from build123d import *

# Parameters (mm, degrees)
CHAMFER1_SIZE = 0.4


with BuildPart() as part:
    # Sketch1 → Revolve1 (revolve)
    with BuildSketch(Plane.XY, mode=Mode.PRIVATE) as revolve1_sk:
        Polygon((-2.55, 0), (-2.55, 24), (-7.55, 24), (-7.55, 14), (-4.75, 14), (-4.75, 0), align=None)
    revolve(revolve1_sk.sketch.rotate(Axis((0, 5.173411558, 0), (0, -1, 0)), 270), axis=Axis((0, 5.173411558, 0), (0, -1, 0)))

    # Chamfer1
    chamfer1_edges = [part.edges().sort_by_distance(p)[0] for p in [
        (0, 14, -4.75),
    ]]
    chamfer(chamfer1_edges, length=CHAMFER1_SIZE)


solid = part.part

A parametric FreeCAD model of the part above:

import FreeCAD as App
import Part
import Sketcher
from FreeCAD import Vector


def edges_at(feature, points):
    """Names of the edges that pass closest to the given points."""
    edges = feature.Shape.Edges
    near = lambda p: min(range(len(edges)), key=lambda i: edges[i].distToShape(Part.Vertex(*p))[0])
    return sorted({f"Edge{near(p) + 1}" for p in points})

doc = App.newDocument("Part")
body = doc.addObject("PartDesign::Body", "Body")

sketch1 = doc.addObject("Sketcher::SketchObject", "Sketch")
body.addObject(sketch1)
sketch1.AttachmentSupport = (doc.XY_Plane, [""])
sketch1.MapMode = "FlatFace"
sketch1.addGeometry(Part.LineSegment(Vector(-2.5, 0, 0), Vector(-2.5, 24, 0)), False)
sketch1.addGeometry(Part.LineSegment(Vector(-2.5, 24, 0), Vector(-7.5, 24, 0)), False)
sketch1.addGeometry(Part.LineSegment(Vector(-7.5, 24, 0), Vector(-7.5, 14, 0)), False)
sketch1.addGeometry(Part.LineSegment(Vector(-7.5, 14, 0), Vector(-4.8, 14, 0)), False)
sketch1.addGeometry(Part.LineSegment(Vector(-4.8, 14, 0), Vector(-4.8, 0, 0)), False)
sketch1.addGeometry(Part.LineSegment(Vector(-4.8, 0, 0), Vector(-2.5, 0, 0)), False)
sketch1.addConstraint(Sketcher.Constraint("Coincident", 0, 2, 1, 1))
sketch1.addConstraint(Sketcher.Constraint("Coincident", 1, 2, 2, 1))
sketch1.addConstraint(Sketcher.Constraint("Coincident", 2, 2, 3, 1))
sketch1.addConstraint(Sketcher.Constraint("Coincident", 3, 2, 4, 1))
sketch1.addConstraint(Sketcher.Constraint("Coincident", 4, 2, 5, 1))
sketch1.addConstraint(Sketcher.Constraint("Coincident", 5, 2, 0, 1))
sketch1.addConstraint(Sketcher.Constraint("Vertical", 0))
sketch1.addConstraint(Sketcher.Constraint("Horizontal", 1))
sketch1.addConstraint(Sketcher.Constraint("Vertical", 2))
sketch1.addConstraint(Sketcher.Constraint("Horizontal", 3))
sketch1.addConstraint(Sketcher.Constraint("Vertical", 4))
sketch1.addConstraint(Sketcher.Constraint("Horizontal", 5))
sketch1.addConstraint(Sketcher.Constraint("PointOnObject", 4, 2, -1))
sketch1.addConstraint(Sketcher.Constraint("DistanceX", 1, 2, 1, 1, 5.0))
sketch1.addConstraint(Sketcher.Constraint("DistanceY", 0, 1, 0, 2, 24.0))
sketch1.addConstraint(Sketcher.Constraint("DistanceY", 2, 2, 2, 1, 10.0))
sketch1.addConstraint(Sketcher.Constraint("DistanceX", 3, 1, 3, 2, 2.8))
sketch1.addConstraint(Sketcher.Constraint("DistanceX", 0, 2, -1, 1, 2.55))
revolution = doc.addObject("PartDesign::Revolution", "Revolution")
body.addObject(revolution)
revolution.Profile = sketch1
revolution.ReferenceAxis = (sketch1, ["V_Axis"])
revolution.Angle = 360
doc.recompute()

chamfer = doc.addObject("PartDesign::Chamfer", "Chamfer")
body.addObject(chamfer)
chamfer.Base = (revolution, edges_at(revolution, [(0, 14, -4.75)]))
chamfer.Size = 0.4

doc.recompute()
